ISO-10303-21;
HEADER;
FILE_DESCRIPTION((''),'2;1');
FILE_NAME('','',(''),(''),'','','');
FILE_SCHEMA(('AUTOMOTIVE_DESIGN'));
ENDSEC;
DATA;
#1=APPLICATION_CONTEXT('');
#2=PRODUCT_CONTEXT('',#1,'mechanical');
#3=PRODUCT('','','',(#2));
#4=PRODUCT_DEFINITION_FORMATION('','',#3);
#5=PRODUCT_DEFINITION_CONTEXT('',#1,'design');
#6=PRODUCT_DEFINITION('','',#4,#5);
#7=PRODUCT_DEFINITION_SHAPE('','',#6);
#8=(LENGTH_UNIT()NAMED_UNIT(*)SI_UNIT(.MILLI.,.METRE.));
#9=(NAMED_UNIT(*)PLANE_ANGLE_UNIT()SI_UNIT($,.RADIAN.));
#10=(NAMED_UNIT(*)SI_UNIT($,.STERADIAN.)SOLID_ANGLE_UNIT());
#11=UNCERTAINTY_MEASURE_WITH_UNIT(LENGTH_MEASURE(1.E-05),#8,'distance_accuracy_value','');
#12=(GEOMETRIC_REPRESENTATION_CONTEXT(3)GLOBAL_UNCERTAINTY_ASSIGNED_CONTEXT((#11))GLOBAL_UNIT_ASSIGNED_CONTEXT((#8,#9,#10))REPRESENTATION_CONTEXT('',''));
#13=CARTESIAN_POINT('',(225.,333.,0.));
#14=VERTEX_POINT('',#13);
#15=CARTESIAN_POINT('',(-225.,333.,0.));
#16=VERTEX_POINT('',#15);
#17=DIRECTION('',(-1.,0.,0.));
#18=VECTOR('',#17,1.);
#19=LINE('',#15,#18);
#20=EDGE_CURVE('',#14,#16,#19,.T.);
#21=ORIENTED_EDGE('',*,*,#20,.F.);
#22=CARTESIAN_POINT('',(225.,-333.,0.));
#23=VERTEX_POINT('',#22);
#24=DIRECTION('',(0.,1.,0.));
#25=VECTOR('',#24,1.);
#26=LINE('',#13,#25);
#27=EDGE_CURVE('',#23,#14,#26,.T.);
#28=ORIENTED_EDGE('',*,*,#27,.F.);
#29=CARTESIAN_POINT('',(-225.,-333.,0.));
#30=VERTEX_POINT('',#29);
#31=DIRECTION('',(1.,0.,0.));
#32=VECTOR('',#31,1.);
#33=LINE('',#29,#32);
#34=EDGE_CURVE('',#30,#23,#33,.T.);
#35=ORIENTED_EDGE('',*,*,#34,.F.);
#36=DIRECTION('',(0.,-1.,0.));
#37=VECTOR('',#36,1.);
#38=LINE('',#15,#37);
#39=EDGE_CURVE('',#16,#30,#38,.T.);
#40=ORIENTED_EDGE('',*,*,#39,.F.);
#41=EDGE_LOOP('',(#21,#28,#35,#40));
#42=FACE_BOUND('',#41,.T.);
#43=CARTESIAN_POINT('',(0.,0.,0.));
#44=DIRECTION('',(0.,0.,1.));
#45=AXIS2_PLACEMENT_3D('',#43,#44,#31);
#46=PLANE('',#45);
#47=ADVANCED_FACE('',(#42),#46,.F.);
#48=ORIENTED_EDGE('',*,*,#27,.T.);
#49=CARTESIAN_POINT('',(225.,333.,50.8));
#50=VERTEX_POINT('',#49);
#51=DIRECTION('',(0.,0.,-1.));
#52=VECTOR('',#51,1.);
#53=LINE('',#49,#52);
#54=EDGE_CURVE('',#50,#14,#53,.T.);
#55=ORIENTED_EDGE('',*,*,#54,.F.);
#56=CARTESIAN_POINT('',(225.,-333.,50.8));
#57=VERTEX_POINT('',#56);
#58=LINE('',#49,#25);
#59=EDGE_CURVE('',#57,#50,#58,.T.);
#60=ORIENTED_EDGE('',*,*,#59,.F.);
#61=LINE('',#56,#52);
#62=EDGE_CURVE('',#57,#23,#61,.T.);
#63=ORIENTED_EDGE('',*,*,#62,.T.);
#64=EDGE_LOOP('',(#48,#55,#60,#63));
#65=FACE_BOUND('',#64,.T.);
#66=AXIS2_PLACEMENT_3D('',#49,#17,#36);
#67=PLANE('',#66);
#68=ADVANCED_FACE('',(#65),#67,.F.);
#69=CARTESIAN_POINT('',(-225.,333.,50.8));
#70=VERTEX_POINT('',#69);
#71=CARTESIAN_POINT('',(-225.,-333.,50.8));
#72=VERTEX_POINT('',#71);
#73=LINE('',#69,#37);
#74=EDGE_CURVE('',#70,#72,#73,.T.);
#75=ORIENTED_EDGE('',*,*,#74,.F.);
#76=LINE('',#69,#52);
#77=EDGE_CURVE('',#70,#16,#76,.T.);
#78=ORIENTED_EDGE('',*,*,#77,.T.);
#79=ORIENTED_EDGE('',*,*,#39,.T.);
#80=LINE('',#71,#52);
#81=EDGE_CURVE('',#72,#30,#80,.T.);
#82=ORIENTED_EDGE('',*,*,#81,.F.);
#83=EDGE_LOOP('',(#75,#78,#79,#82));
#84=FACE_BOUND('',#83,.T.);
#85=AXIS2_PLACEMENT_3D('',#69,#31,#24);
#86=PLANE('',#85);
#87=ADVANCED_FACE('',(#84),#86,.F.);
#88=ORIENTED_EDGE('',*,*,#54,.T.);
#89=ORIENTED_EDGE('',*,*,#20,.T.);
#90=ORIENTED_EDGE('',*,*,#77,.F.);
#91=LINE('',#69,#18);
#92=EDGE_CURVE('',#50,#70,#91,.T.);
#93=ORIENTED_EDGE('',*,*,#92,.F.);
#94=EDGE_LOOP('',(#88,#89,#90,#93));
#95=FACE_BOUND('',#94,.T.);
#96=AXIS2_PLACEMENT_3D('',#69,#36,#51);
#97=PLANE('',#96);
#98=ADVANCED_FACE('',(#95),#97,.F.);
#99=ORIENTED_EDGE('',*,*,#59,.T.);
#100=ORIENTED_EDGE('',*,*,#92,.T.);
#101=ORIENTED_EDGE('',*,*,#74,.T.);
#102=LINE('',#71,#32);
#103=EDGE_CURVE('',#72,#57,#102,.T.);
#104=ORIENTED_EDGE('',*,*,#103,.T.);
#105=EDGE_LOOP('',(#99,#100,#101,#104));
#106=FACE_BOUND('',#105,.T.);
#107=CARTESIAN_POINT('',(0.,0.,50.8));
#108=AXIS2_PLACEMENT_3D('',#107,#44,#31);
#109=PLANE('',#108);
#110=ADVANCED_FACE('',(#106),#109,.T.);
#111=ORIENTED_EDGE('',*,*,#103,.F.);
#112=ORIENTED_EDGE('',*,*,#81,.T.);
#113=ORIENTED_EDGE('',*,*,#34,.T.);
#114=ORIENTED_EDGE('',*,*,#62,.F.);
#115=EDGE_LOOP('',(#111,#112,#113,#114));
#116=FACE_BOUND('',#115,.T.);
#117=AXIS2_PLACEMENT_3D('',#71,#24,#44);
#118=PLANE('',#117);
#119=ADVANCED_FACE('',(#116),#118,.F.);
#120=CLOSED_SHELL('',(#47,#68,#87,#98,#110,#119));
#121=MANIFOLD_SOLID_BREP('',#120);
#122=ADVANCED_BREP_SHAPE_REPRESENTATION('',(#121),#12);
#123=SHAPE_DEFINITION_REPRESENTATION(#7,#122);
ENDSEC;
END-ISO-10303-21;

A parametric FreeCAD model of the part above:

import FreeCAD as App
import Part
import Sketcher

V = App.Vector


def add_polygon(sketch, points):
    """Adds a closed chain of lines whose ends are joined by coincident constraints."""
    first, n = sketch.GeometryCount, len(points)
    for a, b in zip(points, points[1:] + points[:1]):
        sketch.addGeometry(Part.LineSegment(App.Vector(*a, 0), App.Vector(*b, 0)), False)
    for i in range(n):
        sketch.addConstraint(Sketcher.Constraint("Coincident", first + i, 2, first + (i + 1) % n, 1))

doc = App.newDocument("Part")
body = doc.addObject("PartDesign::Body", "Body")

# Sketch on XY plane
sketch1 = body.newObject("Sketcher::SketchObject", "Sketch")
sketch1.AttachmentSupport = (doc.getObject("XY_Plane"), [""])
sketch1.MapMode = "FlatFace"
add_polygon(sketch1, [(-225, 333), (-225, -333), (225, -333), (225, 333)])  # lines 0-3
sketch1.addConstraint([
    Sketcher.Constraint("Vertical", 0),
    Sketcher.Constraint("Horizontal", 1),
    Sketcher.Constraint("Vertical", 2),
    Sketcher.Constraint("Horizontal", 3),
    Sketcher.Constraint("Symmetric", 0, 2, 2, 2, -1, 1),
    Sketcher.Constraint("DistanceX", 1, 1, 1, 2, 450.0),
    Sketcher.Constraint("DistanceY", 0, 2, 0, 1, 666.0),
])
pad1 = body.newObject("PartDesign::Pad", "Pad")
pad1.Profile = sketch1
pad1.Length = 50.8

doc.recompute()
